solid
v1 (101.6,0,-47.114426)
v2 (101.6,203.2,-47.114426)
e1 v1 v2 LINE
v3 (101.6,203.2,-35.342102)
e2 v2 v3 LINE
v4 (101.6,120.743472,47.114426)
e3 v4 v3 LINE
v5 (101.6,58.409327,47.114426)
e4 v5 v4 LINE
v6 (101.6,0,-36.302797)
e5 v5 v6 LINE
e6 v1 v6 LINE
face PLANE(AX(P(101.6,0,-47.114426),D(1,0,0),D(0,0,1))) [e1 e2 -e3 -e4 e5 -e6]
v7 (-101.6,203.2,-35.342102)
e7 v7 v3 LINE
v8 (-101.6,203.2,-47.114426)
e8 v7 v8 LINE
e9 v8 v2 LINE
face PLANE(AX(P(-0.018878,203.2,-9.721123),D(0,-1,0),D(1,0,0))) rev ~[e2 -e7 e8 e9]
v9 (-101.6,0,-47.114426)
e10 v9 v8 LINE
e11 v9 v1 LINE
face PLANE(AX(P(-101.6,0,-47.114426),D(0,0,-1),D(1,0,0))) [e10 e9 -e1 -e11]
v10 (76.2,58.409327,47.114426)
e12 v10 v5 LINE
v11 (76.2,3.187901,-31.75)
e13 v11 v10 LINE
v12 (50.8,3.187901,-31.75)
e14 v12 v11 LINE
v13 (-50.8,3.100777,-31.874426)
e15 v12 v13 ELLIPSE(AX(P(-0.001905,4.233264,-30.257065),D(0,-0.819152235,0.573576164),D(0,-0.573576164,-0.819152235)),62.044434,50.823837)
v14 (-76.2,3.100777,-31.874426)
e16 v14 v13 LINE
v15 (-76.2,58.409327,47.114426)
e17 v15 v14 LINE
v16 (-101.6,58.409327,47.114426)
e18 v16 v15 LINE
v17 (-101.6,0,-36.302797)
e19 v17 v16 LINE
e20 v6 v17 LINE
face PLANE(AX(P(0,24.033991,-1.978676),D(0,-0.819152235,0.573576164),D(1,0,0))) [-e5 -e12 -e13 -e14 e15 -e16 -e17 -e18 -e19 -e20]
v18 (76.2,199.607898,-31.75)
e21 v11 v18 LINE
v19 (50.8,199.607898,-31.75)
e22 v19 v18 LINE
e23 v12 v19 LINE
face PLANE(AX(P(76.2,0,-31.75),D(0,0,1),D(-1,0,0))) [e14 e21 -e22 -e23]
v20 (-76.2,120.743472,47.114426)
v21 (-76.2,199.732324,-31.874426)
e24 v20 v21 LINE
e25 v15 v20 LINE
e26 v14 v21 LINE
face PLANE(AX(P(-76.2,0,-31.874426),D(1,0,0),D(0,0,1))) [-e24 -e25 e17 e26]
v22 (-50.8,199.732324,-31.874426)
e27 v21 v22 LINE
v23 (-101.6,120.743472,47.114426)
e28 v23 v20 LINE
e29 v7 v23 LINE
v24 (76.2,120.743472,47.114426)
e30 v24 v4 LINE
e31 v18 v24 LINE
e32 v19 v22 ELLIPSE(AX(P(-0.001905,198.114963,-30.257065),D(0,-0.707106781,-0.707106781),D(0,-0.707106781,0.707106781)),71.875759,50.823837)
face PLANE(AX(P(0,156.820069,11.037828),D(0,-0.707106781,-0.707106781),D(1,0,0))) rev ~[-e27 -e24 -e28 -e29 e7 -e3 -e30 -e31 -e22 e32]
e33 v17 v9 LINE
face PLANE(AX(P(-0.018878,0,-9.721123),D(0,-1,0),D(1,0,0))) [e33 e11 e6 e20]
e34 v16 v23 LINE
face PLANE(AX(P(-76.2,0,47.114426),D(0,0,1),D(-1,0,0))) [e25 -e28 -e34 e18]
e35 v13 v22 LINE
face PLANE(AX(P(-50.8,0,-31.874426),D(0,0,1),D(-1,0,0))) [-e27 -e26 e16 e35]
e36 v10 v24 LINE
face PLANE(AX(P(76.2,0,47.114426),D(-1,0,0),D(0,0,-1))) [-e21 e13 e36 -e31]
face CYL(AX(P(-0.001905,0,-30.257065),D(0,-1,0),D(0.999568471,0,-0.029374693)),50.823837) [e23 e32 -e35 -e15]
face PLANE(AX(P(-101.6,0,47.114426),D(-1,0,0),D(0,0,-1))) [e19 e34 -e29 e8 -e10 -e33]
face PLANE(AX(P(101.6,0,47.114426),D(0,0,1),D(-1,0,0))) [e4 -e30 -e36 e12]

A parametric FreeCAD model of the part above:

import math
import FreeCAD as App
import Part
import Sketcher
from FreeCAD import Vector
Q = App.Units.Quantity


def add_polygon(sketch, points):
    """Adds a closed chain of lines whose ends are joined by coincident constraints."""
    first, n = sketch.GeometryCount, len(points)
    for a, b in zip(points, points[1:] + points[:1]):
        sketch.addGeometry(Part.LineSegment(App.Vector(*a, 0), App.Vector(*b, 0)), False)
    for i in range(n):
        sketch.addConstraint(Sketcher.Constraint("Coincident", first + i, 2, first + (i + 1) % n, 1))

doc = App.newDocument("Part")
body = doc.addObject("PartDesign::Body", "Body")

# Sketch on XZ plane
sketch1 = body.newObject("Sketcher::SketchObject", "Sketch")
sketch1.AttachmentSupport = (doc.getObject("XZ_Plane"), [""])
sketch1.MapMode = "FlatFace"
sketch1.addGeometry([
    Part.LineSegment(Vector(-102, -47, 0), Vector(102, -47, 0)),  # 0
    Part.LineSegment(Vector(102, -47, 0), Vector(102, 47, 0)),  # 1
    Part.LineSegment(Vector(102, 47, 0), Vector(76, 47, 0)),  # 2
    Part.LineSegment(Vector(76, 47, 0), Vector(76, -32, 0)),  # 3
    Part.LineSegment(Vector(76, -32, 0), Vector(51, -32, 0)),  # 4
    Part.ArcOfCircle(Part.Circle(Vector(0, -30, 0), Vector(0, 0, 1), 51), math.radians(-2), math.radians(182)),  # 5
    Part.LineSegment(Vector(-51, -32, 0), Vector(-76, -32, 0)),  # 6
    Part.LineSegment(Vector(-76, -32, 0), Vector(-76, 47, 0)),  # 7
    Part.LineSegment(Vector(-76, 47, 0), Vector(-102, 47, 0)),  # 8
    Part.LineSegment(Vector(-102, 47, 0), Vector(-102, -47, 0)),  # 9
], False)
sketch1.addConstraint([
    Sketcher.Constraint("Coincident", 0, 2, 1, 1),
    Sketcher.Constraint("Coincident", 1, 2, 2, 1),
    Sketcher.Constraint("Coincident", 2, 2, 3, 1),
    Sketcher.Constraint("Coincident", 3, 2, 4, 1),
    Sketcher.Constraint("Coincident", 4, 2, 5, 1),
    Sketcher.Constraint("Coincident", 5, 2, 6, 1),
    Sketcher.Constraint("Coincident", 6, 2, 7, 1),
    Sketcher.Constraint("Coincident", 7, 2, 8, 1),
    Sketcher.Constraint("Coincident", 8, 2, 9, 1),
    Sketcher.Constraint("Coincident", 9, 2, 0, 1),
    Sketcher.Constraint("Horizontal", 0),
    Sketcher.Constraint("Vertical", 1),
    Sketcher.Constraint("Horizontal", 2),
    Sketcher.Constraint("Vertical", 3),
    Sketcher.Constraint("Horizontal", 4),
    Sketcher.Constraint("Horizontal", 6),
    Sketcher.Constraint("Vertical", 7),
    Sketcher.Constraint("Horizontal", 8),
    Sketcher.Constraint("Vertical", 9),
    Sketcher.Constraint("Symmetric", 0, 2, 8, 2, -1, 1),
    Sketcher.Constraint("Symmetric", 2, 2, 7, 2, -2),
    Sketcher.Constraint("Equal", 2, 4),
    Sketcher.Constraint("Equal", 4, 6),
    Sketcher.Constraint("DistanceX", 0, 1, 0, 2, Q("8 in")),
    Sketcher.Constraint("DistanceX", 2, 2, 2, 1, Q("1 in")),
    Sketcher.Constraint("DistanceY", 0, 2, 5, 2, Q("0.6 in")),
    Sketcher.Constraint("DistanceY", 3, 2, -1, 1, Q("1.25 in")),
    Sketcher.Constraint("Radius", 5, Q("50.823837 mm")),
    Sketcher.Constraint("DistanceY", 1, 1, 1, 2, Q("94.228852 mm")),
])
pad1 = body.newObject("PartDesign::Pad", "Pad")
pad1.Profile = sketch1
pad1.Length = Q("8 in")
pad1.Reversed = True

# Sketch on an angled plane
sketch2 = body.newObject("Sketcher::SketchObject", "Sketch001")
sketch2.Placement = App.Placement(Vector(0, 14.976081, -10.486365), App.Rotation(Vector(1, 0, 0), Vector(0, 0.573576164, 0.819152235), Vector(0, -0.819152235, 0.573576164), "ZXY"))
add_polygon(sketch2, [(-122, 131), (-122, -105), (122, -105), (122, 131)])  # lines 0-3
sketch2.addConstraint([
    Sketcher.Constraint("Vertical", 0),
    Sketcher.Constraint("Horizontal", 1),
    Sketcher.Constraint("Vertical", 2),
    Sketcher.Constraint("Horizontal", 3),
    Sketcher.Constraint("DistanceX", 1, 1, 1, 2, Q("243.94399 mm")),
    Sketcher.Constraint("DistanceY", 0, 2, 0, 1, Q("236.642776 mm")),
    Sketcher.Constraint("DistanceY", 0, 2, -1, 1, Q("105.406441 mm")),
    Sketcher.Constraint("DistanceX", 0, 2, -1, 1, Q("121.971995 mm")),
])
pocket1 = body.newObject("PartDesign::Pocket", "Pocket")
pocket1.Profile = sketch2
pocket1.Length = Q("2 in")
pocket1.Reversed = True

# Sketch on an angled plane
sketch3 = body.newObject("Sketcher::SketchObject", "Sketch002")
sketch3.Placement = App.Placement(Vector(0, 14.976081, -10.486365), App.Rotation(Vector(1, 0, 0), Vector(0, 0.573576164, 0.819152235), Vector(0, -0.819152235, 0.573576164), "ZXY"))
add_polygon(sketch3, [(-120, 117), (-120, -92), (120, -92), (120, 117)])  # lines 0-3
sketch3.addConstraint([
    Sketcher.Constraint("Vertical", 0),
    Sketcher.Constraint("Horizontal", 1),
    Sketcher.Constraint("Vertical", 2),
    Sketcher.Constraint("Horizontal", 3),
    Sketcher.Constraint("DistanceX", 1, 1, 1, 2, Q("239.845752 mm")),
    Sketcher.Constraint("DistanceY", 0, 2, 0, 1, Q("209.126156 mm")),
    Sketcher.Constraint("DistanceX", 0, 2, -1, 1, Q("119.922876 mm")),
    Sketcher.Constraint("DistanceY", 0, 2, -1, 1, Q("92.398584 mm")),
])
pocket2 = body.newObject("PartDesign::Pocket", "Pocket001")
pocket2.Profile = sketch3
pocket2.Length = Q("0.1 in")

# Sketch on an angled plane
sketch4 = body.newObject("Sketcher::SketchObject", "Sketch003")
sketch4.Placement = App.Placement(Vector(0, 85.725, 85.725), App.Rotation(Vector(1, 0, 0), Vector(0, -0.707106781, 0.707106781), Vector(0, -0.707106781, -0.707106781), "ZXY"))
add_polygon(sketch4, [(-125, 17), (-125, -225), (125, -225), (125, 17)])  # lines 0-3
sketch4.addConstraint([
    Sketcher.Constraint("Vertical", 0),
    Sketcher.Constraint("Horizontal", 1),
    Sketcher.Constraint("Vertical", 2),
    Sketcher.Constraint("Horizontal", 3),
    Sketcher.Constraint("DistanceY", 0, 2, 0, 1, Q("241.68387 mm")),
    Sketcher.Constraint("DistanceX", 1, 1, 1, 2, Q("249.582366 mm")),
    Sketcher.Constraint("DistanceX", 0, 2, -1, 1, Q("124.791183 mm")),
    Sketcher.Constraint("DistanceY", 0, 2, -1, 1, Q("225.084707 mm")),
])
pocket3 = body.newObject("PartDesign::Pocket", "Pocket002")
pocket3.Profile = sketch4
pocket3.Length = Q("3 in")

# Sketch on an angled plane
sketch5 = body.newObject("Sketcher::SketchObject", "Sketch004")
sketch5.Placement = App.Placement(Vector(0, 85.725, 85.725), App.Rotation(Vector(1, 0, 0), Vector(0, -0.707106781, 0.707106781), Vector(0, -0.707106781, -0.707106781), "ZXY"))
add_polygon(sketch5, [(-110, 1), (-110, -207), (110, -207), (110, 1)])  # lines 0-3
sketch5.addConstraint([
    Sketcher.Constraint("Vertical", 0),
    Sketcher.Constraint("Horizontal", 1),
    Sketcher.Constraint("Vertical", 2),
    Sketcher.Constraint("Horizontal", 3),
    Sketcher.Constraint("DistanceX", 1, 1, 1, 2, Q("220.484912 mm")),
    Sketcher.Constraint("DistanceY", 0, 2, 0, 1, Q("208.068371 mm")),
    Sketcher.Constraint("DistanceX", 0, 2, -1, 1, Q("110.242456 mm")),
    Sketcher.Constraint("DistanceY", 0, 2, -1, 1, Q("207.117796 mm")),
])
pocket4 = body.newObject("PartDesign::Pocket", "Pocket003")
pocket4.Profile = sketch5
pocket4.Length = Q("0.1 in")
pocket4.Reversed = True

doc.recompute()
